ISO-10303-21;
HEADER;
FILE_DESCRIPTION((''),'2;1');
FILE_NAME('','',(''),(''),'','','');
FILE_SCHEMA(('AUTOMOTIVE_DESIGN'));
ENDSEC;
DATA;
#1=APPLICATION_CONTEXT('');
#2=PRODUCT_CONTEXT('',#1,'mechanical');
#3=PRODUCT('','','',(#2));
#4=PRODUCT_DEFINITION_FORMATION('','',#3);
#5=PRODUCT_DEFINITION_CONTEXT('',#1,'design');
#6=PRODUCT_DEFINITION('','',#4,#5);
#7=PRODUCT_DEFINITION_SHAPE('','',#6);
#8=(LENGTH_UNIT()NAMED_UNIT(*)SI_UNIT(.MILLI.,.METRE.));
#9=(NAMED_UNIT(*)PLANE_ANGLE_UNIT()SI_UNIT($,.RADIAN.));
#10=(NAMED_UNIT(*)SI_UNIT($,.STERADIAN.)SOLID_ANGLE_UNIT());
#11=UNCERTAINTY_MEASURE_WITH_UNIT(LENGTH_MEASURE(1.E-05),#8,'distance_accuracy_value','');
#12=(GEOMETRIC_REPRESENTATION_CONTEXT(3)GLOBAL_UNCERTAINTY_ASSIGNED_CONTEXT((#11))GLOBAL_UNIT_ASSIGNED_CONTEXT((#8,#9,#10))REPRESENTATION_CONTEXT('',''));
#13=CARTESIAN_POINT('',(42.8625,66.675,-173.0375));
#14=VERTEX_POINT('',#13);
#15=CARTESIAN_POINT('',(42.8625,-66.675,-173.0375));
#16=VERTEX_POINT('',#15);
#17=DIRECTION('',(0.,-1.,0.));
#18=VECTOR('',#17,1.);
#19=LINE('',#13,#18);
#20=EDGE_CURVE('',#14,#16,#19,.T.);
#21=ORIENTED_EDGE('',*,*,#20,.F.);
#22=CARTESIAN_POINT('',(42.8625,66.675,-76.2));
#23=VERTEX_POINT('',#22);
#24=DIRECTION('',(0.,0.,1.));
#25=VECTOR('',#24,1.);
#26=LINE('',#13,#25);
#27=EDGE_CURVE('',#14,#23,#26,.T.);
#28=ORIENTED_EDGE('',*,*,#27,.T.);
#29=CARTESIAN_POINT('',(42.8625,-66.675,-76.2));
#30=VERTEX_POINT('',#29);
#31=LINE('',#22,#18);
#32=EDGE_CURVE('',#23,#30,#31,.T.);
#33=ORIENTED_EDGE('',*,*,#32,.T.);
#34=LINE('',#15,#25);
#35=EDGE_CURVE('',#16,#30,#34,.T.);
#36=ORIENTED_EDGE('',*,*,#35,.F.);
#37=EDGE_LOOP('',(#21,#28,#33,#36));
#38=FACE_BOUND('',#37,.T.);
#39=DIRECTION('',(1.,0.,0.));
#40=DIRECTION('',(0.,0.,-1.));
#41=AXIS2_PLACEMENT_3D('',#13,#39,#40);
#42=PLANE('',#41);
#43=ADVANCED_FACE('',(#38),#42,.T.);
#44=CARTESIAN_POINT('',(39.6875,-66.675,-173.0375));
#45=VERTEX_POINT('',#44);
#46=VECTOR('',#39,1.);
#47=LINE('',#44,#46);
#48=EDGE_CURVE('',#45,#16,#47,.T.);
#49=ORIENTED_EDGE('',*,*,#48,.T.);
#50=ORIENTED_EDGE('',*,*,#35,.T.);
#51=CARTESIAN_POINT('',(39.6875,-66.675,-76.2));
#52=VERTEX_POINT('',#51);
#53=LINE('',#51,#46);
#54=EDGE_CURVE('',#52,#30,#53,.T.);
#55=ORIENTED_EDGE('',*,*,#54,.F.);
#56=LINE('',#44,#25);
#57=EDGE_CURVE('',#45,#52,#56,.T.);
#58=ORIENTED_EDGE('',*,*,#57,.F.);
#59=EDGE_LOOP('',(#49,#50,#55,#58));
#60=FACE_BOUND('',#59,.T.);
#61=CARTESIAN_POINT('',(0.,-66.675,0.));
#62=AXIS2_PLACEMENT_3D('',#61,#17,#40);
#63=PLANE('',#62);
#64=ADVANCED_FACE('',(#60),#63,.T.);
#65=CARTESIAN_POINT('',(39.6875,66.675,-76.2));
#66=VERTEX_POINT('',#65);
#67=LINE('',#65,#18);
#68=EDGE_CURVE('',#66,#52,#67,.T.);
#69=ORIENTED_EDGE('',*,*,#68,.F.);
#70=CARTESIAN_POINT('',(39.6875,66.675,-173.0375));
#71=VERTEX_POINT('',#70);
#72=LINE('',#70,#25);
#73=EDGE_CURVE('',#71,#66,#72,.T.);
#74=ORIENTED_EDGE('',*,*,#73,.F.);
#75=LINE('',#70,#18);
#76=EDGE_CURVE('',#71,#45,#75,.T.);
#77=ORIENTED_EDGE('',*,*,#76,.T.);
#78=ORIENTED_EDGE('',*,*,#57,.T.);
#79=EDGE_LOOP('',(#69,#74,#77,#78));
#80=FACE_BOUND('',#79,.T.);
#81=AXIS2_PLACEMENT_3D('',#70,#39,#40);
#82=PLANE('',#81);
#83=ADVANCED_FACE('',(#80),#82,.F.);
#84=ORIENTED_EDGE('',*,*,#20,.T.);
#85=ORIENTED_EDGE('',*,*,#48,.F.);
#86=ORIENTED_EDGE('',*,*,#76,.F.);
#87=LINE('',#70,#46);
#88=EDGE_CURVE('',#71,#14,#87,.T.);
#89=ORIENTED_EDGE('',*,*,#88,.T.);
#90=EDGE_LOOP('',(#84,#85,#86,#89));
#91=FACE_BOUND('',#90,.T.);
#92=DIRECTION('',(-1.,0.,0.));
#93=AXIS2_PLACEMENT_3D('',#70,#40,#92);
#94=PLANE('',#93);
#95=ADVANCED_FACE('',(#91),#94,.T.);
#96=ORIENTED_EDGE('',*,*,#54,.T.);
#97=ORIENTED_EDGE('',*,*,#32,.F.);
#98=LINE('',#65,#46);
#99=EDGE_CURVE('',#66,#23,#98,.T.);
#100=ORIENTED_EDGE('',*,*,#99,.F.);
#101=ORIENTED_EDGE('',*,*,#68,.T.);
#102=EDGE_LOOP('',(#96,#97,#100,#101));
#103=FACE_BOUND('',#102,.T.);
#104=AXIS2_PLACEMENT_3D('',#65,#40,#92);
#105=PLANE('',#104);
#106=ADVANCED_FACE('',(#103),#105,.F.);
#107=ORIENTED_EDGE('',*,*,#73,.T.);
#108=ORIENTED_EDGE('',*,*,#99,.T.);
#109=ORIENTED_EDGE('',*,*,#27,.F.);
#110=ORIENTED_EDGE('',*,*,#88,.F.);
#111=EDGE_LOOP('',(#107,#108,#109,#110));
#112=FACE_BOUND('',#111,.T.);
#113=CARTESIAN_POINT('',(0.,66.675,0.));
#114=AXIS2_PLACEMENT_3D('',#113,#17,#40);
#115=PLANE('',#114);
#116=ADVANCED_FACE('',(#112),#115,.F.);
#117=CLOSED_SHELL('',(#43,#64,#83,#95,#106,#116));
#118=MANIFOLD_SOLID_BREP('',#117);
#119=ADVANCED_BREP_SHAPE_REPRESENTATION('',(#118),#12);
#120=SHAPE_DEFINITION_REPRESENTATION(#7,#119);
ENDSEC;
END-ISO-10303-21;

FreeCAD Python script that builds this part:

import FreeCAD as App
import Part
import Sketcher

V = App.Vector
Q = App.Units.Quantity


def add_polygon(sketch, points):
    """Adds a closed chain of lines whose ends are joined by coincident constraints."""
    first, n = sketch.GeometryCount, len(points)
    for a, b in zip(points, points[1:] + points[:1]):
        sketch.addGeometry(Part.LineSegment(App.Vector(*a, 0), App.Vector(*b, 0)), False)
    for i in range(n):
        sketch.addConstraint(Sketcher.Constraint("Coincident", first + i, 2, first + (i + 1) % n, 1))

doc = App.newDocument("Part")
body = doc.addObject("PartDesign::Body", "Body")

sketch1 = body.newObject("Sketcher::SketchObject", "Sketch")
sketch1.AttachmentSupport = (doc.getObject("XZ_Plane"), [""])
sketch1.MapMode = "FlatFace"
add_polygon(sketch1, [(39.7, -173), (39.7, -76.2), (42.9, -76.2), (42.9, -173)])
sketch1.addConstraint(Sketcher.Constraint("Vertical", 0))
sketch1.addConstraint(Sketcher.Constraint("Horizontal", 1))
sketch1.addConstraint(Sketcher.Constraint("Vertical", 2))
sketch1.addConstraint(Sketcher.Constraint("Horizontal", 3))
sketch1.addConstraint(Sketcher.Constraint("DistanceY", 0, 2, -1, 1, Q("3 in")))
sketch1.addConstraint(Sketcher.Constraint("DistanceX", 1, 1, 1, 2, Q("0.125 in")))
sketch1.addConstraint(Sketcher.Constraint("DistanceY", 0, 1, 0, 2, Q("3.8125 in")))
sketch1.addConstraint(Sketcher.Constraint("DistanceX", -1, 1, 0, 2, Q("1.5625 in")))
pad1 = body.newObject("PartDesign::Pad", "Pad")
pad1.Profile = sketch1
pad1.Length = Q("5.25 in")
pad1.Midplane = True

doc.recompute()
